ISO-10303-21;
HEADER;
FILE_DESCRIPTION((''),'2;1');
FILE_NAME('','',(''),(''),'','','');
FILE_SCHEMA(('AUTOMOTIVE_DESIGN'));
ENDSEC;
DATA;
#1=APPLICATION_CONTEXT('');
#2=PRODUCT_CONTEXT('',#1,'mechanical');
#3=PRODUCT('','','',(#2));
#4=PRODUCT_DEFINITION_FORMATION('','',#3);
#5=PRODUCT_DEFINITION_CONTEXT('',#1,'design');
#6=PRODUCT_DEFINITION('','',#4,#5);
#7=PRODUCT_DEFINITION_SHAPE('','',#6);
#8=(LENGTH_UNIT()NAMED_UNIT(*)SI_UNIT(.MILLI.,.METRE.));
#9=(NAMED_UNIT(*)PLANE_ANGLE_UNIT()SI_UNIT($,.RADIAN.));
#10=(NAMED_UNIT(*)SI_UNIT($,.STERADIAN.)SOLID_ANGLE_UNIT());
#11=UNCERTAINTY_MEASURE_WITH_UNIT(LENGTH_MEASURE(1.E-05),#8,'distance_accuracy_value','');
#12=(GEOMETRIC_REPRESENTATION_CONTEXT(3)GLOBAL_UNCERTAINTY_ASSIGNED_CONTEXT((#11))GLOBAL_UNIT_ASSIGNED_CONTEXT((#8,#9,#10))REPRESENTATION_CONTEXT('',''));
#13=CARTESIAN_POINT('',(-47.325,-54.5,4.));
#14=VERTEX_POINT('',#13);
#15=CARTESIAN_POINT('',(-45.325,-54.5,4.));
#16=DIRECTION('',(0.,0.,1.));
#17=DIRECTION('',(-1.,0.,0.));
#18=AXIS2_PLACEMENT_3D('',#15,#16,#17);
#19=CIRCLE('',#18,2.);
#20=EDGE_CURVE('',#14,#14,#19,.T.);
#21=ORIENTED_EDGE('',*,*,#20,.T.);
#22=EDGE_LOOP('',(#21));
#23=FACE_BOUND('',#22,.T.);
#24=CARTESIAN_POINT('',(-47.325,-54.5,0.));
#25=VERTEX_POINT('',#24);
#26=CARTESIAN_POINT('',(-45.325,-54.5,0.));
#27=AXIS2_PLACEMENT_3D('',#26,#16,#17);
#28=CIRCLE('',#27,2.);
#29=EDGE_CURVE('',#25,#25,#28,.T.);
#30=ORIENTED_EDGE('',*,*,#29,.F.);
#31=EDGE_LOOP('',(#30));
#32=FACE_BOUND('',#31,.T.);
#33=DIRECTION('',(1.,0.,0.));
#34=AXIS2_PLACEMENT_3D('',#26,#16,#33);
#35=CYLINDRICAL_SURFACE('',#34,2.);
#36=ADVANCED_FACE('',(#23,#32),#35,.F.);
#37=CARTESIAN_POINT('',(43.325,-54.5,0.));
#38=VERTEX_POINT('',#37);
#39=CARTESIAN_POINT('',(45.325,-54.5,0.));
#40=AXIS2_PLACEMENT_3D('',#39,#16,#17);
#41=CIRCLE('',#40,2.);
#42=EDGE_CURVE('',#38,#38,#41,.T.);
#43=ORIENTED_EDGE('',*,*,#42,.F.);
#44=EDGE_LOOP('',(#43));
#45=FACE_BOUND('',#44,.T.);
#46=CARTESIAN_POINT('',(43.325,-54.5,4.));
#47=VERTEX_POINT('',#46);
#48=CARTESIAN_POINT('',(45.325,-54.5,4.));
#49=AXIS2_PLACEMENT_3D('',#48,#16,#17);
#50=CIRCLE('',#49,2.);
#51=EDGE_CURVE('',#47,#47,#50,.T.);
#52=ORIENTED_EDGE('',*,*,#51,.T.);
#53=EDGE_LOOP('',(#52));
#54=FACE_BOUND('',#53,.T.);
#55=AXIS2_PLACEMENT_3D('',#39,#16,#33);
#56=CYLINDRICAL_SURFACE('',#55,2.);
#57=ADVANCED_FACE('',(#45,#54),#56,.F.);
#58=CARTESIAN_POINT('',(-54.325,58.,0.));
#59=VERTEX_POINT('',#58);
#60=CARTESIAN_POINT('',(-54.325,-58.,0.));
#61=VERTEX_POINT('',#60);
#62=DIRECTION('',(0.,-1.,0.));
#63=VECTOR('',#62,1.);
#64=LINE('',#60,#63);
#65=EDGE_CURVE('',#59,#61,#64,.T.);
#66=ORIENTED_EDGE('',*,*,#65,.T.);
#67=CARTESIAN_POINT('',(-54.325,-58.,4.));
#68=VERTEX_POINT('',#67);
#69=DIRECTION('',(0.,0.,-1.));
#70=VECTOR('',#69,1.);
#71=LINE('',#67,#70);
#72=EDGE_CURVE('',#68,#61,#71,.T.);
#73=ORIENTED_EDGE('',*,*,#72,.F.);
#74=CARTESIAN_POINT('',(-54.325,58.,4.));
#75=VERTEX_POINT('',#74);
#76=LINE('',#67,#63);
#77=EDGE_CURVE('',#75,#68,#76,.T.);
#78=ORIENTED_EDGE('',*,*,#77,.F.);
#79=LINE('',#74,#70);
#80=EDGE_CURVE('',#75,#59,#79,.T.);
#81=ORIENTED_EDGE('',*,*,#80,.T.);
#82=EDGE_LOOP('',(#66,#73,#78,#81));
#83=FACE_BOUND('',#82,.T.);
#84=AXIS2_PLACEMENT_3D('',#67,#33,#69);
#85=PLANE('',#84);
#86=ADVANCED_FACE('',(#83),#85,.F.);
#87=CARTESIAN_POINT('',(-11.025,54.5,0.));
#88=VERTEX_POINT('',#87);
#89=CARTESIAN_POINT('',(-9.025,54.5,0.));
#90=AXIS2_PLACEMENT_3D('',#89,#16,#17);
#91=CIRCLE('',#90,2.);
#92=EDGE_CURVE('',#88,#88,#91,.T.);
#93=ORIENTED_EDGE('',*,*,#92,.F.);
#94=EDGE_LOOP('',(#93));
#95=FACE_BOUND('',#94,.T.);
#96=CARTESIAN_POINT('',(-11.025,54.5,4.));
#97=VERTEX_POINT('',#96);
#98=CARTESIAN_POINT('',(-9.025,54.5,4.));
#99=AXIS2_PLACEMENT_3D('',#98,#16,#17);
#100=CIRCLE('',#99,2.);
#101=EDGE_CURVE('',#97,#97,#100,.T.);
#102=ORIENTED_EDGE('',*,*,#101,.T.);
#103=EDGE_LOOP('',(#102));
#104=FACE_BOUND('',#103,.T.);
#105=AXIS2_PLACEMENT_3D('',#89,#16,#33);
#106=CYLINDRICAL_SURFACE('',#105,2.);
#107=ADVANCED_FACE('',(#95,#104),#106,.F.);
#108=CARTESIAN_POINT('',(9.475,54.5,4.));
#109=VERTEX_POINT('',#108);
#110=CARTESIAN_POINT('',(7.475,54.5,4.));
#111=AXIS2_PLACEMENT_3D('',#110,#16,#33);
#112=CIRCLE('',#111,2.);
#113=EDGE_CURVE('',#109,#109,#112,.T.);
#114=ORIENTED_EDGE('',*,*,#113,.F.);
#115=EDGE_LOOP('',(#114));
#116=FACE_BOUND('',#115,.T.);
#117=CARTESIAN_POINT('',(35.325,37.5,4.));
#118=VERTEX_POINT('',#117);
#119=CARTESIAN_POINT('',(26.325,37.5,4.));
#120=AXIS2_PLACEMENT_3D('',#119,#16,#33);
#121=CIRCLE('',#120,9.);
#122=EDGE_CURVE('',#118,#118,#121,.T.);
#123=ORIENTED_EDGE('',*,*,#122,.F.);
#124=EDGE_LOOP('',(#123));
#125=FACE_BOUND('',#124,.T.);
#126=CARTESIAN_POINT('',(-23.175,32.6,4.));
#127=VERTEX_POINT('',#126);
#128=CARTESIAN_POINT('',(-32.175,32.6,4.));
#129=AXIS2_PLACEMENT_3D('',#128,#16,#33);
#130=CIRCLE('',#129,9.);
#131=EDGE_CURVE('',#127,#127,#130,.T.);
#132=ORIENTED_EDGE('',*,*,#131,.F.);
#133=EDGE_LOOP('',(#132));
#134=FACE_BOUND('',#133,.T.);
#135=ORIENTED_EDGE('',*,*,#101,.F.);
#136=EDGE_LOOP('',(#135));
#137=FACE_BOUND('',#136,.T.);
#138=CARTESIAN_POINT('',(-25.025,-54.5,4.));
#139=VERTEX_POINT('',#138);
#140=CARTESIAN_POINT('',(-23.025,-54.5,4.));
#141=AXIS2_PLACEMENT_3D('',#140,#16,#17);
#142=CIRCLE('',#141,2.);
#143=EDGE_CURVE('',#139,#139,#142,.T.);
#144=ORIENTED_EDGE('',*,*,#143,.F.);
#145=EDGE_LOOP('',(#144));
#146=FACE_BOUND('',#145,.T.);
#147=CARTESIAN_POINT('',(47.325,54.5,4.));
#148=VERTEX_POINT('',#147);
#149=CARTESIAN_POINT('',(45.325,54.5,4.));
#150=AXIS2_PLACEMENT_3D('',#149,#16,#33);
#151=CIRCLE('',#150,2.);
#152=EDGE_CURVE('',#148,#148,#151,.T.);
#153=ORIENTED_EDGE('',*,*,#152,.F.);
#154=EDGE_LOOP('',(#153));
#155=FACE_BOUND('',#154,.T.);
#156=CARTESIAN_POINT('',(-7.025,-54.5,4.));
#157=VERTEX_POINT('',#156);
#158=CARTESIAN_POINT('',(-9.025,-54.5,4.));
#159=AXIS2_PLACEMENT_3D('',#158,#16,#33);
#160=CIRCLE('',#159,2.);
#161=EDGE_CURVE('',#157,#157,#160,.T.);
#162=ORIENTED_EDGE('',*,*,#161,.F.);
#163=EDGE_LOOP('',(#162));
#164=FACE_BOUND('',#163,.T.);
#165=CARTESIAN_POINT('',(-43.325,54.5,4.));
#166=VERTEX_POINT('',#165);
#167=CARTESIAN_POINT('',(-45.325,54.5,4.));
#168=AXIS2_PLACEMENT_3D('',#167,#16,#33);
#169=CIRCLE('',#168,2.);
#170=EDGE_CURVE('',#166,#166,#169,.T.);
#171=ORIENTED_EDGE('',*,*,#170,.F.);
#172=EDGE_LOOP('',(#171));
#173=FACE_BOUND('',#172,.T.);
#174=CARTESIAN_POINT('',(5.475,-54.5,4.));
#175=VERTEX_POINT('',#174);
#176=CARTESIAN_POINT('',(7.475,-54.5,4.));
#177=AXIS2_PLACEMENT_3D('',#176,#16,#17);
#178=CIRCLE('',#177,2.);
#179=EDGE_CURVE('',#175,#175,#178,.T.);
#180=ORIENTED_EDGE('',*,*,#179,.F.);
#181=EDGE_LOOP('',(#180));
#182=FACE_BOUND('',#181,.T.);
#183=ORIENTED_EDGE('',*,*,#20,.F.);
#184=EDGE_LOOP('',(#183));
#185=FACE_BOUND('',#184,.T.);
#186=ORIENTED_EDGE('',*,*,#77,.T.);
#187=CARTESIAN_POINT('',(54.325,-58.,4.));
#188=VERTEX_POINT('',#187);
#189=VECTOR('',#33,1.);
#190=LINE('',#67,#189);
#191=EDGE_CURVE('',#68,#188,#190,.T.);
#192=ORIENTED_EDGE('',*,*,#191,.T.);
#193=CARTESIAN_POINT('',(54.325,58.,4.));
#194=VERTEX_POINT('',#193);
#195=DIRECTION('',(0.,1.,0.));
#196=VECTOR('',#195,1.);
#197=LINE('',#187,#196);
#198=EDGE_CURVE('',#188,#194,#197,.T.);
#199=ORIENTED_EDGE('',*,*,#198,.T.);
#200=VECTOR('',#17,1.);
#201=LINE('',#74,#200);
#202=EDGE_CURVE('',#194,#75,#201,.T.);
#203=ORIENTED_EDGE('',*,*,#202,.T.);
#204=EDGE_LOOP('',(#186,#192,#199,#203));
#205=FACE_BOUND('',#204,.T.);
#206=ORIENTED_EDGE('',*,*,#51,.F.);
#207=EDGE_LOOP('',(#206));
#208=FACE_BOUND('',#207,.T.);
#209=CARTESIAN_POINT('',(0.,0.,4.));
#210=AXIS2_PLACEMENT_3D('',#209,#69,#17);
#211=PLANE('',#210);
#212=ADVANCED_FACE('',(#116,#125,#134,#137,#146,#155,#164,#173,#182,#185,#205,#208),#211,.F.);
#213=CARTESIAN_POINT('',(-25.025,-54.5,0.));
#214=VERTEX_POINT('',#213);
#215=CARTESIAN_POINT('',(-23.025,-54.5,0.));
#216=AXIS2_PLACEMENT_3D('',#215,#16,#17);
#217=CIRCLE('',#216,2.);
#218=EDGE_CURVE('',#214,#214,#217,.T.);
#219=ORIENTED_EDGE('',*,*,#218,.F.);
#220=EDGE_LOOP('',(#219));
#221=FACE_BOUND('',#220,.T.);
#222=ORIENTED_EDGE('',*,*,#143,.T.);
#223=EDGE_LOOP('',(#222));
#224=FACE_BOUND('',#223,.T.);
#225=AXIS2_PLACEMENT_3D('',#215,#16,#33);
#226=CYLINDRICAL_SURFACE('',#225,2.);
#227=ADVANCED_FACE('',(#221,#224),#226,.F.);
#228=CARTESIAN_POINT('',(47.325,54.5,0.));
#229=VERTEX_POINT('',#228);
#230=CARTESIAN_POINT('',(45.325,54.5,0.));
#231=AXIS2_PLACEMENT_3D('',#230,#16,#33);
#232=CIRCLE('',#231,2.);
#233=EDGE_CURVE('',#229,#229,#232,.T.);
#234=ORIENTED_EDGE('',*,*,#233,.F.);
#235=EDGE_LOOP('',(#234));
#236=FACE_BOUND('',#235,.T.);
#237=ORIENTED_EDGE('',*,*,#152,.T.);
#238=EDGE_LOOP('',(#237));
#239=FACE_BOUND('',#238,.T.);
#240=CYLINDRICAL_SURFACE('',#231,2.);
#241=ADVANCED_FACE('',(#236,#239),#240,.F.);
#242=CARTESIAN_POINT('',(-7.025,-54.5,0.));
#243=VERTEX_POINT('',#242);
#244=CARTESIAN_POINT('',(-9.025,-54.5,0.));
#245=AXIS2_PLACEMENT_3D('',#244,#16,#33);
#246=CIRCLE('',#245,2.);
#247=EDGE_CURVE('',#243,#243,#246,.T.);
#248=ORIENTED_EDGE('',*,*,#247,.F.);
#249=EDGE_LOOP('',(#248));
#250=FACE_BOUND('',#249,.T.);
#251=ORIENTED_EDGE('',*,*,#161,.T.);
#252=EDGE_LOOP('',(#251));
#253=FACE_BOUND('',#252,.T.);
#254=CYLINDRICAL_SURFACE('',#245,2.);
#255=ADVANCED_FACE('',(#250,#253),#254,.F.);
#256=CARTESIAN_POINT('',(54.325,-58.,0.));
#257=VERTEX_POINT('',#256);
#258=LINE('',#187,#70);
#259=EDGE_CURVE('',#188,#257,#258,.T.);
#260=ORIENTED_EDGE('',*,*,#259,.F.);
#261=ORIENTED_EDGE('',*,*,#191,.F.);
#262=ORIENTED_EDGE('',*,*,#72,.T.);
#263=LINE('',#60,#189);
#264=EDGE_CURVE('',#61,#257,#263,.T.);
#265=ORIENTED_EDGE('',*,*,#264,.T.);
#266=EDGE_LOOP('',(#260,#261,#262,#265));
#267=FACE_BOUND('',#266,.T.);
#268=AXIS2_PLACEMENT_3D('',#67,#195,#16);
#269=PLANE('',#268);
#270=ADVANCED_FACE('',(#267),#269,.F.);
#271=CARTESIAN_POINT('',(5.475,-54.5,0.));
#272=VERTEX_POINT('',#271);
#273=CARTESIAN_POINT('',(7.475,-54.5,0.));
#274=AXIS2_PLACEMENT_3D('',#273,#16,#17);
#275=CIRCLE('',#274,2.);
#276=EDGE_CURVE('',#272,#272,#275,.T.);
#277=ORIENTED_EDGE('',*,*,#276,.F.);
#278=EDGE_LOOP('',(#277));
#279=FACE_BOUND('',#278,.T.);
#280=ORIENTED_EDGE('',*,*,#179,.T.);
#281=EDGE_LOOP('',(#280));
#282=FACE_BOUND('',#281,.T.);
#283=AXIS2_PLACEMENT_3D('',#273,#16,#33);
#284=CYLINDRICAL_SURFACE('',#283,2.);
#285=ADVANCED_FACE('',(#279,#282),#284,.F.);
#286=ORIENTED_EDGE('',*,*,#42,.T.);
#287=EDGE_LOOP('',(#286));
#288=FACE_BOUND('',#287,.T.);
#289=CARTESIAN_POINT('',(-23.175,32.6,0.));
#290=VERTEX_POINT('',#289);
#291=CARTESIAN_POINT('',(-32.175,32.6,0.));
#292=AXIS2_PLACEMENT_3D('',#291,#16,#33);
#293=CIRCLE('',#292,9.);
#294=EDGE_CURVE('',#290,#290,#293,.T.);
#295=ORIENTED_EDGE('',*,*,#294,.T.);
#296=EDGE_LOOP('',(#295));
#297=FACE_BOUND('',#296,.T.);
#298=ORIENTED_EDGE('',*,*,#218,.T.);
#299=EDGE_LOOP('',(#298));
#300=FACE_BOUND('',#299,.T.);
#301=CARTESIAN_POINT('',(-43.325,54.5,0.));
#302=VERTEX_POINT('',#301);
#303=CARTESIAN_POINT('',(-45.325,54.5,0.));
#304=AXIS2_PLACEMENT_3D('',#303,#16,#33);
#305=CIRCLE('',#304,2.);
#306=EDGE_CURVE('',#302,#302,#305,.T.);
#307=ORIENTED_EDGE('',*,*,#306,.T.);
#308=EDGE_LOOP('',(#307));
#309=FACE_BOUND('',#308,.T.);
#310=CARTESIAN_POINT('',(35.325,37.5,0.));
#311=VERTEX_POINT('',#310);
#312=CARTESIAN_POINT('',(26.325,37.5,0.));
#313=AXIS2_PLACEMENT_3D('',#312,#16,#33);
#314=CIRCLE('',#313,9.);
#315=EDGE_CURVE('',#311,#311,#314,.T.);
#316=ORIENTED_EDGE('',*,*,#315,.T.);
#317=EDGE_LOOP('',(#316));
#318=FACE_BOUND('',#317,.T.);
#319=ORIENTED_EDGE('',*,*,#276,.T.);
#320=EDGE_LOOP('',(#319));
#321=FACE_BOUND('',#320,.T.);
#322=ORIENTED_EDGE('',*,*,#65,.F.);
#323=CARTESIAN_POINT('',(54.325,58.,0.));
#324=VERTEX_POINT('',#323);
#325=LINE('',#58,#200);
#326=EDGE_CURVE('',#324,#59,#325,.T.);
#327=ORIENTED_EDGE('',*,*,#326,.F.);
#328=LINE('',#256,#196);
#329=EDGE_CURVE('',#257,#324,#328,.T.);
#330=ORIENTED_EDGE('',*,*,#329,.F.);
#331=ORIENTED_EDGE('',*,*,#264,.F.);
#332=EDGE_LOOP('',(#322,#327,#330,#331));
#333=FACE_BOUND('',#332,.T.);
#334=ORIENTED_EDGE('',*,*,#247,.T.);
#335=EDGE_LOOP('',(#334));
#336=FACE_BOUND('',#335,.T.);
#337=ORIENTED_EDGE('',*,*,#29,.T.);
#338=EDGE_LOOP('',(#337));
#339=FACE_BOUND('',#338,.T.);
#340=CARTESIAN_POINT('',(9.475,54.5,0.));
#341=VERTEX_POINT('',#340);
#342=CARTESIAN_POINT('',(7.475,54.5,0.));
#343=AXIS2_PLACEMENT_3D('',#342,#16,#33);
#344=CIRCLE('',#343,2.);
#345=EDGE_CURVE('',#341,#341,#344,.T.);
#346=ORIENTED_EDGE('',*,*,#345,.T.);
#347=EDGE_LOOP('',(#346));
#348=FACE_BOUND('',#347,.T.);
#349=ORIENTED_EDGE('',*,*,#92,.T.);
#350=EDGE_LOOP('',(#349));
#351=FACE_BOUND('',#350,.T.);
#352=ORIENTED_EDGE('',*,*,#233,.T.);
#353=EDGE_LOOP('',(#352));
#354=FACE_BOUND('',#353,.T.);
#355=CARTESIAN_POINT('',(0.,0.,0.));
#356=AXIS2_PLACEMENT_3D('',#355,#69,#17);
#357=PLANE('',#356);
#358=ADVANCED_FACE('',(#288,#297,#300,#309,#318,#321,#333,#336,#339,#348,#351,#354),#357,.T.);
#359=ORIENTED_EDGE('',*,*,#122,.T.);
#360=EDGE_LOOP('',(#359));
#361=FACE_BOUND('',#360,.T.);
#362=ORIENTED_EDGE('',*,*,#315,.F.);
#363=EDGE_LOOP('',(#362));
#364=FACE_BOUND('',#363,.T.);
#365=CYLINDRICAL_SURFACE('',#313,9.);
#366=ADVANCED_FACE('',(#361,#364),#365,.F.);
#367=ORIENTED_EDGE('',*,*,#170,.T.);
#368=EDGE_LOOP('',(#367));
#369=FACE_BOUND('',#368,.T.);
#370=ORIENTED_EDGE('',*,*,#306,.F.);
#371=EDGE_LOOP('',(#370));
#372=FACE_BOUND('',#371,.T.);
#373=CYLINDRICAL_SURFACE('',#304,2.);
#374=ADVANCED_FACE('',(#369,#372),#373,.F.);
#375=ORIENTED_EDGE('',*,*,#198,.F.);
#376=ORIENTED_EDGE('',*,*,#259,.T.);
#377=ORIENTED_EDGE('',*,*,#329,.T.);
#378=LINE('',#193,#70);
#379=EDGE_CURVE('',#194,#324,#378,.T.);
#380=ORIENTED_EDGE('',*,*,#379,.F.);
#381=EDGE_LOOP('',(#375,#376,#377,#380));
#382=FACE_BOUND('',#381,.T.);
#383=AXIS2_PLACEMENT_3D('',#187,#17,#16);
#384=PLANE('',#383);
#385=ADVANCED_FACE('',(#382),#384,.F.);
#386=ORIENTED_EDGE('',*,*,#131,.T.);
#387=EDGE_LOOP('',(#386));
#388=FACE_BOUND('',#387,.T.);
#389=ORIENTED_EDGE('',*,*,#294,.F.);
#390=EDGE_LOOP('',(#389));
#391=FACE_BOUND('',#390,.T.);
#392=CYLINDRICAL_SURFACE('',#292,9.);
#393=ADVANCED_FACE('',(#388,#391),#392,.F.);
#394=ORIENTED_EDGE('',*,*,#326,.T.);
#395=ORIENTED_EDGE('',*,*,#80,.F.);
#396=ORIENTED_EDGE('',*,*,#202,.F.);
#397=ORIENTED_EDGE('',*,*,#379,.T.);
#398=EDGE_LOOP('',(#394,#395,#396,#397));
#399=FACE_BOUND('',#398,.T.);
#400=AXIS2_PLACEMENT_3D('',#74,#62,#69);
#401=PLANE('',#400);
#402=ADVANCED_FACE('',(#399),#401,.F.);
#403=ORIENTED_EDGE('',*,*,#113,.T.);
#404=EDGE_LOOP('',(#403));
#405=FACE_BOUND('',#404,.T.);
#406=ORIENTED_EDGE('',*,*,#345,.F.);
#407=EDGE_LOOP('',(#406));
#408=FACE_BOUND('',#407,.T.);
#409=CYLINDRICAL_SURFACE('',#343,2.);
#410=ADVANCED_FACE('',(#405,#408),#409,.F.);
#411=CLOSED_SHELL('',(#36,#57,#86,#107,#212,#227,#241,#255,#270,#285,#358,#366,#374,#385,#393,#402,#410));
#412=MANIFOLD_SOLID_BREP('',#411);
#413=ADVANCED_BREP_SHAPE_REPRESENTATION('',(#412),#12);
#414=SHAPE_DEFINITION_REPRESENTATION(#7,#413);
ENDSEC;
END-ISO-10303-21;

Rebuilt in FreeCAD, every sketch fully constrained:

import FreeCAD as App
import Part
import Sketcher

doc = App.newDocument("Part")
body = doc.addObject("PartDesign::Body", "Body")

# Sketch on XY plane
sketch1 = body.newObject("Sketcher::SketchObject", "Sketch")
sketch1.AttachmentSupport = (doc.getObject("XY_Plane"), [""])
sketch1.MapMode = "FlatFace"
sketch1.addGeometry([
    Part.LineSegment(App.Vector(-54, 58, 0), App.Vector(-54, -58, 0)),
    Part.LineSegment(App.Vector(-54, -58, 0), App.Vector(54, -58, 0)),
    Part.LineSegment(App.Vector(54, -58, 0), App.Vector(54, 58, 0)),
    Part.LineSegment(App.Vector(54, 58, 0), App.Vector(-54, 58, 0)),
], False)
sketch1.addConstraint([
    Sketcher.Constraint("Coincident", 0, 2, 1, 1),
    Sketcher.Constraint("Coincident", 1, 2, 2, 1),
    Sketcher.Constraint("Coincident", 2, 2, 3, 1),
    Sketcher.Constraint("Coincident", 3, 2, 0, 1),
    Sketcher.Constraint("Vertical", 0),
    Sketcher.Constraint("Horizontal", 1),
    Sketcher.Constraint("Vertical", 2),
    Sketcher.Constraint("Horizontal", 3),
    Sketcher.Constraint("Symmetric", 0, 2, 2, 2, -1, 1),
    Sketcher.Constraint("DistanceY", 0, 2, 0, 1, 116.0),
    Sketcher.Constraint("DistanceX", 1, 1, 1, 2, 108.65),
])
pad1 = body.newObject("PartDesign::Pad", "Pad")
pad1.Profile = sketch1
pad1.Length = 4

# Sketch on XY plane
sketch2 = body.newObject("Sketcher::SketchObject", "Sketch001")
sketch2.AttachmentSupport = (doc.getObject("XY_Plane"), [""])
sketch2.MapMode = "FlatFace"
sketch2.AttachmentOffset = App.Placement(App.Vector(0, 0, 4), App.Rotation())
sketch2.addGeometry([
    Part.Circle(App.Vector(26, 38, 0), App.Vector(0, 0, 1), 9),
    Part.Circle(App.Vector(-32, 33, 0), App.Vector(0, 0, 1), 9),
], False)
sketch2.addConstraint([
    Sketcher.Constraint("Equal", 0, 1),
    Sketcher.Constraint("Diameter", 0, 18.0),
    Sketcher.Constraint("DistanceY", -1, 1, 0, 3, 37.5),
    Sketcher.Constraint("DistanceY", -1, 1, 1, 3, 32.6),
    Sketcher.Constraint("DistanceX", 1, 3, 0, 3, 58.5),
    Sketcher.Constraint("DistanceX", -1, 1, 0, 3, 26.325),
])
pocket1 = body.newObject("PartDesign::Pocket", "Pocket")
pocket1.Profile = sketch2
pocket1.Type = "ThroughAll"

# Sketch on XY plane
sketch3 = body.newObject("Sketcher::SketchObject", "Sketch002")
sketch3.AttachmentSupport = (doc.getObject("XY_Plane"), [""])
sketch3.MapMode = "FlatFace"
sketch3.AttachmentOffset = App.Placement(App.Vector(0, 0, 4), App.Rotation())
sketch3.addGeometry([
    Part.Circle(App.Vector(-45.3, 54.5, 0), App.Vector(0, 0, 1), 2),  # 0
    Part.Circle(App.Vector(-45.3, -54.5, 0), App.Vector(0, 0, 1), 2),  # 1
    Part.Circle(App.Vector(-9, 54.5, 0), App.Vector(0, 0, 1), 2),  # 2
    Part.Circle(App.Vector(-9, -54.5, 0), App.Vector(0, 0, 1), 2),  # 3
    Part.Circle(App.Vector(-23, -54.5, 0), App.Vector(0, 0, 1), 2),  # 4
    Part.Circle(App.Vector(7.5, 54.5, 0), App.Vector(0, 0, 1), 2),  # 5
    Part.Circle(App.Vector(7.5, -54.5, 0), App.Vector(0, 0, 1), 2),  # 6
    Part.Circle(App.Vector(45.3, 54.5, 0), App.Vector(0, 0, 1), 2),  # 7
    Part.Circle(App.Vector(45.3, -54.5, 0), App.Vector(0, 0, 1), 2),  # 8
], False)
sketch3.addConstraint([
    Sketcher.Constraint("Equal", 0, 1),
    Sketcher.Constraint("Equal", 1, 2),
    Sketcher.Constraint("Equal", 2, 3),
    Sketcher.Constraint("Equal", 3, 4),
    Sketcher.Constraint("Equal", 4, 5),
    Sketcher.Constraint("Equal", 5, 6),
    Sketcher.Constraint("Equal", 6, 7),
    Sketcher.Constraint("Equal", 7, 8),
    Sketcher.Constraint("Symmetric", 1, 3, 7, 3, -1, 1),
    Sketcher.Constraint("Symmetric", 0, 3, 8, 3, -1, 1),
    Sketcher.Constraint("Symmetric", 0, 3, 7, 3, -2),
    Sketcher.Constraint("Symmetric", 2, 3, 3, 3, -1),
    Sketcher.Constraint("Symmetric", 5, 3, 6, 3, -1),
    Sketcher.Constraint("Horizontal", 0, 3, 2, 3),
    Sketcher.Constraint("Horizontal", 3, 3, 4, 3),
    Sketcher.Constraint("Horizontal", 2, 3, 5, 3),
    Sketcher.Constraint("Diameter", 0, 4.0),
    Sketcher.Constraint("DistanceY", 1, 3, 0, 3, 109.0),
    Sketcher.Constraint("DistanceX", 4, 3, 3, 3, 14.0),
    Sketcher.Constraint("DistanceX", 0, 3, 2, 3, 36.3),
    Sketcher.Constraint("DistanceX", 2, 3, 5, 3, 16.5),
    Sketcher.Constraint("DistanceX", 5, 3, 7, 3, 37.85),
])
pocket2 = body.newObject("PartDesign::Pocket", "Pocket001")
pocket2.Profile = sketch3
pocket2.Type = "ThroughAll"

doc.recompute()
